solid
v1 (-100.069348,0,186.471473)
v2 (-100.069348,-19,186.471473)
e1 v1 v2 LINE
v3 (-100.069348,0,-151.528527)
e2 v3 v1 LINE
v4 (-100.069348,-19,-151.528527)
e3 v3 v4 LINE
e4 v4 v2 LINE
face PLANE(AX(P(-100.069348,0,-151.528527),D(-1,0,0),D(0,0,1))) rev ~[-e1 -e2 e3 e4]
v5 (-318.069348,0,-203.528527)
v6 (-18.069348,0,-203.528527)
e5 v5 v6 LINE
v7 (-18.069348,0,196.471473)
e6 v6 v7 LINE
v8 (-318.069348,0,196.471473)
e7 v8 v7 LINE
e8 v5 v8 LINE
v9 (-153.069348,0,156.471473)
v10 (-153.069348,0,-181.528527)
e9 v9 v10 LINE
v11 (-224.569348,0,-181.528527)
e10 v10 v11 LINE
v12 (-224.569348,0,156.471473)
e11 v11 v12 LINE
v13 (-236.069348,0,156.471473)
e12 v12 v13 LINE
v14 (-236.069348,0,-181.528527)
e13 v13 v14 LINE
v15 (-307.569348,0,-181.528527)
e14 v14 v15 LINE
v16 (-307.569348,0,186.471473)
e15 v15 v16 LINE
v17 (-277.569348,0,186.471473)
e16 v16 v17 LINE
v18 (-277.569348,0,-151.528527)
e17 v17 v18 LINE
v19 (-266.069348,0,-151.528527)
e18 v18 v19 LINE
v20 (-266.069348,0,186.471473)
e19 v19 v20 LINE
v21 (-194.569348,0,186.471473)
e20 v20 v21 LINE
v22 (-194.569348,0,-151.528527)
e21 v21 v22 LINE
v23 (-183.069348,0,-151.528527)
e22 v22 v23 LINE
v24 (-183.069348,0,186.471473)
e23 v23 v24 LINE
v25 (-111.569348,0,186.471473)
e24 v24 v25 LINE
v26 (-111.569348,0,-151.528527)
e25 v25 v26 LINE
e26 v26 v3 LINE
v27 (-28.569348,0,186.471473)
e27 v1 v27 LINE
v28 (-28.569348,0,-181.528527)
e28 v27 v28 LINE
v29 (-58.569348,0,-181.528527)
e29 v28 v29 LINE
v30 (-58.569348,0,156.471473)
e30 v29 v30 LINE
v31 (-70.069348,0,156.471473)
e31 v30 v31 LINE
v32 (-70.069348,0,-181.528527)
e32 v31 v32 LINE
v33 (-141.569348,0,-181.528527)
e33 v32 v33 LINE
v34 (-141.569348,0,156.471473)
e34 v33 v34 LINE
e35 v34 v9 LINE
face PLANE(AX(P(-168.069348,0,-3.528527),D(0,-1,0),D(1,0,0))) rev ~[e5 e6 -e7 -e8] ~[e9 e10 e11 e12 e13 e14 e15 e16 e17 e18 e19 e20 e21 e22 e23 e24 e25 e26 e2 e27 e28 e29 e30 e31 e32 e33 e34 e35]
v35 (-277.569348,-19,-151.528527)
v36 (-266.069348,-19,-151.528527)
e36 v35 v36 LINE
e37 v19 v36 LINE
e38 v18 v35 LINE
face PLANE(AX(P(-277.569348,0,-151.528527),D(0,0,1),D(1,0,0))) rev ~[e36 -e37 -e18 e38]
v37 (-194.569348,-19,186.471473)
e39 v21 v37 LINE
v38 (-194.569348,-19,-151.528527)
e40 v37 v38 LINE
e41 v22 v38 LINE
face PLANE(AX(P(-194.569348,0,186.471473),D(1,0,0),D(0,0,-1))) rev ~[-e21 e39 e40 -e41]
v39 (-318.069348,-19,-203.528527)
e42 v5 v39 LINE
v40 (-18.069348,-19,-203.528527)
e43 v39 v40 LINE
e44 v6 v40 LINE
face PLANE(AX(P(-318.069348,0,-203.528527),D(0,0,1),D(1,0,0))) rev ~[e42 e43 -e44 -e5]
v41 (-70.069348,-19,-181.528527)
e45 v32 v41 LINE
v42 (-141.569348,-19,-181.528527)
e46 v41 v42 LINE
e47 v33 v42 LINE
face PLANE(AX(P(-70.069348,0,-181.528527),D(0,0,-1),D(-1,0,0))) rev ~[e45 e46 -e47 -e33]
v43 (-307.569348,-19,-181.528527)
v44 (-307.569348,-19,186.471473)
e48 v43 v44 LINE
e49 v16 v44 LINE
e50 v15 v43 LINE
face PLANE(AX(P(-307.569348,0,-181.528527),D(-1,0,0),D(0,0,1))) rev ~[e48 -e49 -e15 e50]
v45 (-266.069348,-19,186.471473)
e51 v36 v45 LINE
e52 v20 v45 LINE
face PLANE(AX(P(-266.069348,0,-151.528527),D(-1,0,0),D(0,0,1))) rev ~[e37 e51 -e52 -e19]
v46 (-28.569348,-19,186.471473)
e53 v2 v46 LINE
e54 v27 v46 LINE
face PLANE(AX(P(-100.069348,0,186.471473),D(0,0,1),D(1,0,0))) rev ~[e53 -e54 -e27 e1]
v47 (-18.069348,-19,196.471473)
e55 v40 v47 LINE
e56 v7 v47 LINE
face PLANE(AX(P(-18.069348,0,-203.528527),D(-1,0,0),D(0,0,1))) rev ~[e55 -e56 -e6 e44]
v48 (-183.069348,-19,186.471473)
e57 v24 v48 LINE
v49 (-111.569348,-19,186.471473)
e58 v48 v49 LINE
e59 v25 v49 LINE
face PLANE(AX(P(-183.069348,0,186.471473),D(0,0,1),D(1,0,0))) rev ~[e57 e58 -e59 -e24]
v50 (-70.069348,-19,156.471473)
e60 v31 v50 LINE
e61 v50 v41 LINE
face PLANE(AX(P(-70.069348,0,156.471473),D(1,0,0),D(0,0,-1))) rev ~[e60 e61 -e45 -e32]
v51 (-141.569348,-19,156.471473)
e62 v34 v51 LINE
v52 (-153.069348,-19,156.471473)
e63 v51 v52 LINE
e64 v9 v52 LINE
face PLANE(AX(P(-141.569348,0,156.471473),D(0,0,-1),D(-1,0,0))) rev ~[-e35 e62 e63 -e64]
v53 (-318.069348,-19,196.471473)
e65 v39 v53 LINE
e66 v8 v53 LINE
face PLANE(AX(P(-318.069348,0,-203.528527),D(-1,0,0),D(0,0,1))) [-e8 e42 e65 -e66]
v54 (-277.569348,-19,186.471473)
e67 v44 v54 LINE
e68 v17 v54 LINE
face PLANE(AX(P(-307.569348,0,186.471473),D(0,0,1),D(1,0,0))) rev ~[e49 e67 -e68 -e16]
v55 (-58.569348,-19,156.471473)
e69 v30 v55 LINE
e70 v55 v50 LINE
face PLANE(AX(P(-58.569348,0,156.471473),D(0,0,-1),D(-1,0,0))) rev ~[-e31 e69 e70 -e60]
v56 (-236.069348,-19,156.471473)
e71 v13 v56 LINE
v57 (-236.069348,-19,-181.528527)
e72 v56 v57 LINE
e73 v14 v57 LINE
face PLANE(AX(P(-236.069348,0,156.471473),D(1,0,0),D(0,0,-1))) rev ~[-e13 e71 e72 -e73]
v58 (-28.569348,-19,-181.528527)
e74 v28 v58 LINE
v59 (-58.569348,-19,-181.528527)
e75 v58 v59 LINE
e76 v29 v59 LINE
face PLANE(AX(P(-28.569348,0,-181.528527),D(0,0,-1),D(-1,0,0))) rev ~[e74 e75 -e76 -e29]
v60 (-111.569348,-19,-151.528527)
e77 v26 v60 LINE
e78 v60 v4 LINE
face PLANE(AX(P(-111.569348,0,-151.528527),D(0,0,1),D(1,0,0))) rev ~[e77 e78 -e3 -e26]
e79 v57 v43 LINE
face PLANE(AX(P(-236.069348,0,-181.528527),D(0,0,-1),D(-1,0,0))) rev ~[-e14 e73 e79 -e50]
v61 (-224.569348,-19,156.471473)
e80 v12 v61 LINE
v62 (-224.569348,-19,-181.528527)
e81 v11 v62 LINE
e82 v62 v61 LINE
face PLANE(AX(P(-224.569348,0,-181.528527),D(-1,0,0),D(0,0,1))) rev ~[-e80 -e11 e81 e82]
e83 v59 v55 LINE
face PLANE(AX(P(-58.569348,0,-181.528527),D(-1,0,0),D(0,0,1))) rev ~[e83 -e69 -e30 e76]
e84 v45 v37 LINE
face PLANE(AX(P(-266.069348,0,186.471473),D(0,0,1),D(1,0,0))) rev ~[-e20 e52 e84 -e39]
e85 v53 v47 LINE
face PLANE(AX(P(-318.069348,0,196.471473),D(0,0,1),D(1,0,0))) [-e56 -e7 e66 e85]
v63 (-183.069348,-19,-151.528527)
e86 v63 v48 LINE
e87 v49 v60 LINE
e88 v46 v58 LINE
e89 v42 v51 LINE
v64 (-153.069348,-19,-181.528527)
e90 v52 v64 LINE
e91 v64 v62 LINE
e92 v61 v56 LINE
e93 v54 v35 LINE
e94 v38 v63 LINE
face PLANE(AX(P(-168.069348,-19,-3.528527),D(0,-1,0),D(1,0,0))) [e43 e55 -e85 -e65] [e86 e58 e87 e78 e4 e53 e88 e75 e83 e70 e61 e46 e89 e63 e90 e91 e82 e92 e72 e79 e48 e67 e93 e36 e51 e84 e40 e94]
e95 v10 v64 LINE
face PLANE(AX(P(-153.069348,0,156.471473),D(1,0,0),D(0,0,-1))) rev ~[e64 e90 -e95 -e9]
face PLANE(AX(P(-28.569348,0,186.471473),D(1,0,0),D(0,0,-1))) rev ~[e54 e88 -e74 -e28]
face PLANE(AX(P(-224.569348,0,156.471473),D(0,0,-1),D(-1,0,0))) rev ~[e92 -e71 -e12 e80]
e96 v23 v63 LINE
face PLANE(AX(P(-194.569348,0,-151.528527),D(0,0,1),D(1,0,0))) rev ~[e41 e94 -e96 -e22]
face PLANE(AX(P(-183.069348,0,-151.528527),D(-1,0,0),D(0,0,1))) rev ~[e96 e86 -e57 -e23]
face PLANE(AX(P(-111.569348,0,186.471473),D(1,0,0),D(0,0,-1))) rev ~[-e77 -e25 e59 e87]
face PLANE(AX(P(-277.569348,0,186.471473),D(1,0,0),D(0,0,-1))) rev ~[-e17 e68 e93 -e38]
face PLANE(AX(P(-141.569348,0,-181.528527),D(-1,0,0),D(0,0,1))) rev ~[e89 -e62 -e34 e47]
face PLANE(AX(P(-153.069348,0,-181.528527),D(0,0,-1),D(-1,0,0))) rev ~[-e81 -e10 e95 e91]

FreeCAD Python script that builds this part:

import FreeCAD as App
import Part
import Sketcher

V = App.Vector


def add_polygon(sketch, points):
    """Adds a closed chain of lines whose ends are joined by coincident constraints."""
    first, n = sketch.GeometryCount, len(points)
    for a, b in zip(points, points[1:] + points[:1]):
        sketch.addGeometry(Part.LineSegment(App.Vector(*a, 0), App.Vector(*b, 0)), False)
    for i in range(n):
        sketch.addConstraint(Sketcher.Constraint("Coincident", first + i, 2, first + (i + 1) % n, 1))

doc = App.newDocument("Part")
params = doc.addObject("Spreadsheet::Sheet", "Params")
for row, (alias, value) in enumerate([
    ("sketch1_width", "300 mm"),
    ("sketch1_height", "400 mm"),
    ("pad1_length", "19 mm"),
    ("sketch2_width", "30 mm"),
    ("sketch2_height", "368 mm"),
    ("sketch2_height2", "338 mm"),
    ("sketch2_width2", "11.5 mm"),
    ("sketch2_width3", "71.5 mm"),
    ("pocket1_length", "19 mm"),
], start=1):
    params.set(f"A{row}", alias)
    params.set(f"B{row}", "=" + value)
    params.setAlias(f"B{row}", alias)

body = doc.addObject("PartDesign::Body", "Body")

# Sketch on XZ plane
sketch1 = doc.addObject("Sketcher::SketchObject", "Sketch")
body.addObject(sketch1)
sketch1.AttachmentSupport = (doc.XZ_Plane, [""])
sketch1.MapMode = "FlatFace"
add_polygon(sketch1, [(-318.069348, 196.471473), (-318.069348, -203.528527), (-18.069348, -203.528527), (-18.069348, 196.471473)])  # lines 0-3
sketch1.addConstraint(Sketcher.Constraint("Vertical", 0))
sketch1.addConstraint(Sketcher.Constraint("Horizontal", 1))
sketch1.addConstraint(Sketcher.Constraint("Vertical", 2))
sketch1.addConstraint(Sketcher.Constraint("Horizontal", 3))
sketch1.addConstraint(Sketcher.Constraint("DistanceX", 1, 1, 1, 2, 300.0))
sketch1.addConstraint(Sketcher.Constraint("DistanceY", 0, 2, 0, 1, 400.0))
sketch1.addConstraint(Sketcher.Constraint("DistanceX", 0, 2, -1, 1, 318.069348))
sketch1.addConstraint(Sketcher.Constraint("DistanceY", 0, 2, -1, 1, 203.528527))
sketch1.setExpression("Constraints[8]", "Params.sketch1_width")
sketch1.setExpression("Constraints[9]", "Params.sketch1_height")
pad1 = doc.addObject("PartDesign::Pad", "Pad")
body.addObject(pad1)
pad1.Profile = sketch1
pad1.setExpression("Length", "Params.pad1_length")

# Sketch on XZ plane
sketch2 = doc.addObject("Sketcher::SketchObject", "Sketch001")
body.addObject(sketch2)
sketch2.AttachmentSupport = (doc.XZ_Plane, [""])
sketch2.MapMode = "FlatFace"
add_polygon(sketch2, [(-28.569348, 186.471473), (-28.569348, -181.528527), (-58.569348, -181.528527), (-58.569348, 156.471473), (-70.069348, 156.471473), (-70.069348, -181.528527), (-141.569348, -181.528527), (-141.569348, 156.471473), (-153.069348, 156.471473), (-153.069348, -181.528527), (-224.569348, -181.528527), (-224.569348, 156.471473), (-236.069348, 156.471473), (-236.069348, -181.528527), (-307.569348, -181.528527), (-307.569348, 186.471473), (-277.569348, 186.471473), (-277.569348, -151.528527), (-266.069348, -151.528527), (-266.069348, 186.471473), (-194.569348, 186.471473), (-194.569348, -151.528527), (-183.069348, -151.528527), (-183.069348, 186.471473), (-111.569348, 186.471473), (-111.569348, -151.528527), (-100.069348, -151.528527), (-100.069348, 186.471473)])  # lines 0-27
sketch2.addConstraint(Sketcher.Constraint("Vertical", 0))
sketch2.addConstraint(Sketcher.Constraint("Horizontal", 1))
sketch2.addConstraint(Sketcher.Constraint("Vertical", 2))
sketch2.addConstraint(Sketcher.Constraint("Horizontal", 3))
sketch2.addConstraint(Sketcher.Constraint("Vertical", 4))
sketch2.addConstraint(Sketcher.Constraint("Horizontal", 5))
sketch2.addConstraint(Sketcher.Constraint("Vertical", 6))
sketch2.addConstraint(Sketcher.Constraint("Horizontal", 7))
sketch2.addConstraint(Sketcher.Constraint("Vertical", 8))
sketch2.addConstraint(Sketcher.Constraint("Horizontal", 9))
sketch2.addConstraint(Sketcher.Constraint("Vertical", 10))
sketch2.addConstraint(Sketcher.Constraint("Horizontal", 11))
sketch2.addConstraint(Sketcher.Constraint("Vertical", 12))
sketch2.addConstraint(Sketcher.Constraint("Horizontal", 13))
sketch2.addConstraint(Sketcher.Constraint("Vertical", 14))
sketch2.addConstraint(Sketcher.Constraint("Horizontal", 15))
sketch2.addConstraint(Sketcher.Constraint("Vertical", 16))
sketch2.addConstraint(Sketcher.Constraint("Horizontal", 17))
sketch2.addConstraint(Sketcher.Constraint("Vertical", 18))
sketch2.addConstraint(Sketcher.Constraint("Horizontal", 19))
sketch2.addConstraint(Sketcher.Constraint("Vertical", 20))
sketch2.addConstraint(Sketcher.Constraint("Horizontal", 21))
sketch2.addConstraint(Sketcher.Constraint("Vertical", 22))
sketch2.addConstraint(Sketcher.Constraint("Horizontal", 23))
sketch2.addConstraint(Sketcher.Constraint("Vertical", 24))
sketch2.addConstraint(Sketcher.Constraint("Horizontal", 25))
sketch2.addConstraint(Sketcher.Constraint("Vertical", 26))
sketch2.addConstraint(Sketcher.Constraint("Horizontal", 27))
sketch2.addConstraint(Sketcher.Constraint("Horizontal", 1, 2, 4, 2))
sketch2.addConstraint(Sketcher.Constraint("Horizontal", 3, 2, 6, 2))
sketch2.addConstraint(Sketcher.Constraint("Horizontal", 5, 2, 8, 2))
sketch2.addConstraint(Sketcher.Constraint("Horizontal", 7, 2, 10, 2))
sketch2.addConstraint(Sketcher.Constraint("Horizontal", 9, 2, 12, 2))
sketch2.addConstraint(Sketcher.Constraint("Horizontal", 15, 2, 18, 2))
sketch2.addConstraint(Sketcher.Constraint("Horizontal", 17, 2, 20, 2))
sketch2.addConstraint(Sketcher.Constraint("Horizontal", 19, 2, 22, 2))
sketch2.addConstraint(Sketcher.Constraint("Horizontal", 21, 2, 24, 2))
sketch2.addConstraint(Sketcher.Constraint("Horizontal", 23, 2, 26, 2))
sketch2.addConstraint(Sketcher.Constraint("Equal", 3, 7))
sketch2.addConstraint(Sketcher.Constraint("Equal", 5, 9))
sketch2.addConstraint(Sketcher.Constraint("Equal", 7, 11))
sketch2.addConstraint(Sketcher.Constraint("Equal", 9, 13))
sketch2.addConstraint(Sketcher.Constraint("Equal", 1, 15))
sketch2.addConstraint(Sketcher.Constraint("Equal", 11, 17))
sketch2.addConstraint(Sketcher.Constraint("Equal", 13, 19))
sketch2.addConstraint(Sketcher.Constraint("Equal", 17, 21))
sketch2.addConstraint(Sketcher.Constraint("Equal", 19, 23))
sketch2.addConstraint(Sketcher.Constraint("Equal", 21, 25))
sketch2.addConstraint(Sketcher.Constraint("Equal", 12, 16))
sketch2.addConstraint(Sketcher.Constraint("DistanceX", 1, 2, 1, 1, 30.0))
sketch2.addConstraint(Sketcher.Constraint("DistanceY", 0, 2, 0, 1, 368.0))
sketch2.addConstraint(Sketcher.Constraint("DistanceY", 2, 1, 2, 2, 338.0))
sketch2.addConstraint(Sketcher.Constraint("DistanceX", 3, 2, 3, 1, 11.5))
sketch2.addConstraint(Sketcher.Constraint("DistanceX", 5, 2, 5, 1, 71.5))
sketch2.addConstraint(Sketcher.Constraint("DistanceX", 0, 2, -1, 1, 28.569348))
sketch2.addConstraint(Sketcher.Constraint("DistanceY", 0, 2, -1, 1, 181.528527))
sketch2.setExpression("Constraints[77]", "Params.sketch2_width")
sketch2.setExpression("Constraints[78]", "Params.sketch2_height")
sketch2.setExpression("Constraints[79]", "Params.sketch2_height2")
sketch2.setExpression("Constraints[80]", "Params.sketch2_width2")
sketch2.setExpression("Constraints[81]", "Params.sketch2_width3")
pocket1 = doc.addObject("PartDesign::Pocket", "Pocket")
body.addObject(pocket1)
pocket1.Profile = sketch2
pocket1.setExpression("Length", "Params.pocket1_length")
pocket1.Reversed = True

doc.recompute()
